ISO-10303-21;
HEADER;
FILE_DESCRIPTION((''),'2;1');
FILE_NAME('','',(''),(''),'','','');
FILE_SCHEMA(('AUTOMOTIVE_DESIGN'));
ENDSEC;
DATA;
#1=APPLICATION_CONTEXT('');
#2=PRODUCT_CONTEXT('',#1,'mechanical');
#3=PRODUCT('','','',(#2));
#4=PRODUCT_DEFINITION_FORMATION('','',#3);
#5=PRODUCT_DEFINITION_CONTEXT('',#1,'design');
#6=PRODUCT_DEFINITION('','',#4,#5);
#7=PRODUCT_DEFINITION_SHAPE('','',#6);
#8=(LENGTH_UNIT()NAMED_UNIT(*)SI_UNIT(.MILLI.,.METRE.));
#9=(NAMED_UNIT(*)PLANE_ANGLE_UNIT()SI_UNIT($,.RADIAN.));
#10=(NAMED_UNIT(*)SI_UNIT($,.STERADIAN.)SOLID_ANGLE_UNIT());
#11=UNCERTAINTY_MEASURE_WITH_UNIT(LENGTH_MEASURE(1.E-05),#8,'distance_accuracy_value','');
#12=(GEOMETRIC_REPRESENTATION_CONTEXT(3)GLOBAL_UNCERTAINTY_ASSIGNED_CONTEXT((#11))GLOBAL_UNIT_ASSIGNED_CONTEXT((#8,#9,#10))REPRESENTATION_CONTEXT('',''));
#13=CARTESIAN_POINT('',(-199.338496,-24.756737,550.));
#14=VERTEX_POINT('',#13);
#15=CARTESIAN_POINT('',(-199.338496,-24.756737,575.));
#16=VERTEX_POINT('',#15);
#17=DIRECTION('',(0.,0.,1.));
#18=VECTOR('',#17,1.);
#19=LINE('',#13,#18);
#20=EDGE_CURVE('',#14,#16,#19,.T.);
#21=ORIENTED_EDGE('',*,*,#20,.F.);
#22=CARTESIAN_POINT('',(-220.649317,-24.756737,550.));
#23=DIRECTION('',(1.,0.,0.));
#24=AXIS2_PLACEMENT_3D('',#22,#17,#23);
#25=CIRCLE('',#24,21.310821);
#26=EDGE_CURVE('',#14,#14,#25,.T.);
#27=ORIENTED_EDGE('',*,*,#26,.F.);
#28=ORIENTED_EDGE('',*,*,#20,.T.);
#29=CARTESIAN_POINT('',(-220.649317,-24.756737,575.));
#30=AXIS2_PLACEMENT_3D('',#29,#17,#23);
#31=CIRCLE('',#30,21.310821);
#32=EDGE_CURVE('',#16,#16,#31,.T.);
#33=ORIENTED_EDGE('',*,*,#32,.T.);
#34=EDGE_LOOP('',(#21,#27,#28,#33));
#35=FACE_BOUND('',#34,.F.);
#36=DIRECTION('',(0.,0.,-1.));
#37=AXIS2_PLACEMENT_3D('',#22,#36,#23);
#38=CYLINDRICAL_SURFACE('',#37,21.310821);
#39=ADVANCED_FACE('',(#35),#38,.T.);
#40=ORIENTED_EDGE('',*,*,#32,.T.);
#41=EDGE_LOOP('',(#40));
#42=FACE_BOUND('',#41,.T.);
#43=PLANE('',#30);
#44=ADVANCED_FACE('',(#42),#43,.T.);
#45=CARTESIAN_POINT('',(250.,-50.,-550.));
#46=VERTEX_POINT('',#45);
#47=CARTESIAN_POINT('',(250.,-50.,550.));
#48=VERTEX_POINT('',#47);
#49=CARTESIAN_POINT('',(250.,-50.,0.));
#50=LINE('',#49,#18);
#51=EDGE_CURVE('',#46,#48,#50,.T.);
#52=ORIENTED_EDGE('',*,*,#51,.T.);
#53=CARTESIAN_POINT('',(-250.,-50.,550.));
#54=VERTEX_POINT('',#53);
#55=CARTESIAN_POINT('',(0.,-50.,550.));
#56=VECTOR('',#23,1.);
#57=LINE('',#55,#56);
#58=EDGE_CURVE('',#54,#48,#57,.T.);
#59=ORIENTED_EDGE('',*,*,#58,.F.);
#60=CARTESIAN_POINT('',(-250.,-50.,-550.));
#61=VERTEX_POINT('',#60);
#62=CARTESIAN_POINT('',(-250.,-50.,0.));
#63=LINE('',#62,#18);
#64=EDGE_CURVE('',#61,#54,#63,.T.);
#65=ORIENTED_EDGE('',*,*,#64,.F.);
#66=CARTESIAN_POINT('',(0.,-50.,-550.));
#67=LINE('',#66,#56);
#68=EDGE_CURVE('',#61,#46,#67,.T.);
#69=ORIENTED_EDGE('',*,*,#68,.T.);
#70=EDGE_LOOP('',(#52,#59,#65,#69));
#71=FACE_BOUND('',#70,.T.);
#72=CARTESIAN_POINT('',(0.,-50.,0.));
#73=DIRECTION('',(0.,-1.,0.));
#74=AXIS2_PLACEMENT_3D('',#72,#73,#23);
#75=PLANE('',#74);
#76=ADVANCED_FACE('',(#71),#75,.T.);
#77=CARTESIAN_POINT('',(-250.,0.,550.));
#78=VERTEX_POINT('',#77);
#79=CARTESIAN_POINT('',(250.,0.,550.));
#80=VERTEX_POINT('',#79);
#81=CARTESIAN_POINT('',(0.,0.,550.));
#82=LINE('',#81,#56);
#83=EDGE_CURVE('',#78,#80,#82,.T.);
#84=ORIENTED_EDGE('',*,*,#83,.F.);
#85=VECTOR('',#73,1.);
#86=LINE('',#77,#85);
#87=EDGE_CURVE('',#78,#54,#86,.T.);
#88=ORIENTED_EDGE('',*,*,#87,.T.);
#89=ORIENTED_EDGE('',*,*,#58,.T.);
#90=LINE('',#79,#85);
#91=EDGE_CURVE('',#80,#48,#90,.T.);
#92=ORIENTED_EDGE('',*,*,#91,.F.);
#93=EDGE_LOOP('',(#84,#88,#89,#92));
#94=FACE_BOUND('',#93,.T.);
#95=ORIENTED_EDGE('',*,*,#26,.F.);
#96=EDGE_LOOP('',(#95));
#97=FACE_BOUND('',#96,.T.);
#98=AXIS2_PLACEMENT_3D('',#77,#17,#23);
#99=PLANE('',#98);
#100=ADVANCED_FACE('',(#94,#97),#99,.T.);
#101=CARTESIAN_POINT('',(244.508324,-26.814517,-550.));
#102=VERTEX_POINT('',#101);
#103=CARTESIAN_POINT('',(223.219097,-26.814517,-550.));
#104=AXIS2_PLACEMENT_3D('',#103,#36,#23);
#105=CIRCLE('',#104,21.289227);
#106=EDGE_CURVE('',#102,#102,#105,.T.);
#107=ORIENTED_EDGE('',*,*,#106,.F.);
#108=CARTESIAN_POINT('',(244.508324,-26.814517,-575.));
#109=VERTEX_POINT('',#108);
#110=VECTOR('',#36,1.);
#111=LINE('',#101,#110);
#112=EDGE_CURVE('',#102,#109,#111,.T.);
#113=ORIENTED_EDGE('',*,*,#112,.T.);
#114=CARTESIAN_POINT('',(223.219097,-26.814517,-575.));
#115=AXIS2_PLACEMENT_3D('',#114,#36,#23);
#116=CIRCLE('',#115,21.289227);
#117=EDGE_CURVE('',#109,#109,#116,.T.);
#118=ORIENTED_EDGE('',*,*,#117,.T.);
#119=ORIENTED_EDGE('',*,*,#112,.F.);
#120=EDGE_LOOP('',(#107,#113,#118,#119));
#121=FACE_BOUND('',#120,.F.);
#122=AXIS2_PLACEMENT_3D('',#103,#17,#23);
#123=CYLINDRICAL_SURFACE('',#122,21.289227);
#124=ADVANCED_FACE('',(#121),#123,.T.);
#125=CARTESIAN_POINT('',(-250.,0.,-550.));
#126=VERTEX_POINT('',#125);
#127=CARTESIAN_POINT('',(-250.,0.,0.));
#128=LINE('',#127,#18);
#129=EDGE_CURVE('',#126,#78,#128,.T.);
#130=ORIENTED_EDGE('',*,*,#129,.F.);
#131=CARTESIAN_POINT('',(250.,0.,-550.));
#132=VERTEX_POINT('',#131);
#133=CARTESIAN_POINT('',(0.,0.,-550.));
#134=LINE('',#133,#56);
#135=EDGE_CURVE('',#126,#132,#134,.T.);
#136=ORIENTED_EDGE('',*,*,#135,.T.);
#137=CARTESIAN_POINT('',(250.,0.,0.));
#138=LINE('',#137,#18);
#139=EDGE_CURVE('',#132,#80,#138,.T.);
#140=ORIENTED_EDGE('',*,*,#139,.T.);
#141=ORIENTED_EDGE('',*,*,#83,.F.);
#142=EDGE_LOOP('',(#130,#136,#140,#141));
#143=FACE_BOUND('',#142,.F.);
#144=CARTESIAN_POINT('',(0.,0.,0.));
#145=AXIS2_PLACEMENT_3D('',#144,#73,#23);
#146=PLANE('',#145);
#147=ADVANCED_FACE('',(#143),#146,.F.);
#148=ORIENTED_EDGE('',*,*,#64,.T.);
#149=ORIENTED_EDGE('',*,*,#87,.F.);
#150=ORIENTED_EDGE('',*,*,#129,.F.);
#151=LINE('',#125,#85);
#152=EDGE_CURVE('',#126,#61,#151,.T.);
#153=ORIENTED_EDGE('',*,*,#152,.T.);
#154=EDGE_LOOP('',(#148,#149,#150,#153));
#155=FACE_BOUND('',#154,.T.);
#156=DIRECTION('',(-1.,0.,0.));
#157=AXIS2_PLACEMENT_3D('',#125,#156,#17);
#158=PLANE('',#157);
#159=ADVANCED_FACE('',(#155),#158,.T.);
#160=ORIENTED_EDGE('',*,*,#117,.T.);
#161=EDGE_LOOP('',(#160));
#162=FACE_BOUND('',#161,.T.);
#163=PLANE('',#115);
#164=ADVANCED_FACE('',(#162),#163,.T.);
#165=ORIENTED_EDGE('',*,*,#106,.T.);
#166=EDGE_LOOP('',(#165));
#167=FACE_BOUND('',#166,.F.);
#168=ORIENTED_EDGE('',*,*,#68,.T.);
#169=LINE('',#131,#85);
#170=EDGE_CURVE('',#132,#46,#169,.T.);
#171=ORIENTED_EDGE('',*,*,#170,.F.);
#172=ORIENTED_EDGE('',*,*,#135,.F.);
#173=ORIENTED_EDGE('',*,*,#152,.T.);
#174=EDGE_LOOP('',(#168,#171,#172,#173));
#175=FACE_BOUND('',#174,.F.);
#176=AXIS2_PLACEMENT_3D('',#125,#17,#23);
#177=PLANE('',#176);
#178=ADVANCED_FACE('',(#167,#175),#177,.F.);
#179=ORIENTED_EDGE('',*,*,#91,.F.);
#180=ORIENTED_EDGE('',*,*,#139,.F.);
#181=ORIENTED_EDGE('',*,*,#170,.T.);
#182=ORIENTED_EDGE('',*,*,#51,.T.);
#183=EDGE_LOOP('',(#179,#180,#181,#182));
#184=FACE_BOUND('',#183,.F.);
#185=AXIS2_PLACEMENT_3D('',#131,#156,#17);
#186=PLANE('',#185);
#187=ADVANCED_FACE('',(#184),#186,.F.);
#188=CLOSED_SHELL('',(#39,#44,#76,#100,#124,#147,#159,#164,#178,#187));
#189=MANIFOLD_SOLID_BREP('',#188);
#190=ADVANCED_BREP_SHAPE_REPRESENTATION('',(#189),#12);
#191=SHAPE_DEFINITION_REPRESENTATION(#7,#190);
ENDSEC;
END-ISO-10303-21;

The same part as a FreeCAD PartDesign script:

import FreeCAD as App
import Part
import Sketcher
from FreeCAD import Vector

doc = App.newDocument("Part")
body = doc.addObject("PartDesign::Body", "Body")

# Sketch on XZ plane
sketch1 = body.newObject("Sketcher::SketchObject", "Sketch")
sketch1.AttachmentSupport = (doc.getObject("XZ_Plane"), [""])
sketch1.MapMode = "FlatFace"
sketch1.addGeometry([
    Part.LineSegment(Vector(-250, 550, 0), Vector(-250, -550, 0)),
    Part.LineSegment(Vector(-250, -550, 0), Vector(250, -550, 0)),
    Part.LineSegment(Vector(250, -550, 0), Vector(250, 550, 0)),
    Part.LineSegment(Vector(250, 550, 0), Vector(-250, 550, 0)),
], False)
sketch1.addConstraint([
    Sketcher.Constraint("Coincident", 0, 2, 1, 1),
    Sketcher.Constraint("Coincident", 1, 2, 2, 1),
    Sketcher.Constraint("Coincident", 2, 2, 3, 1),
    Sketcher.Constraint("Coincident", 3, 2, 0, 1),
    Sketcher.Constraint("Vertical", 0),
    Sketcher.Constraint("Horizontal", 1),
    Sketcher.Constraint("Vertical", 2),
    Sketcher.Constraint("Horizontal", 3),
    Sketcher.Constraint("Symmetric", 0, 2, 2, 2, -1, 1),
    Sketcher.Constraint("DistanceX", 1, 1, 1, 2, 500.0),
    Sketcher.Constraint("DistanceY", 0, 2, 0, 1, 1100.0),
])
pad1 = body.newObject("PartDesign::Pad", "Pad")
pad1.Profile = sketch1
pad1.Length = 50

# Sketch on XY plane
sketch2 = body.newObject("Sketcher::SketchObject", "Sketch001")
sketch2.AttachmentSupport = (doc.getObject("XY_Plane"), [""])
sketch2.MapMode = "FlatFace"
sketch2.AttachmentOffset = App.Placement(Vector(0, 0, 550), App.Rotation())
sketch2.addGeometry(Part.Circle(Vector(-221, -25, 0), Vector(0, 0, 1), 21), False)
sketch2.addConstraint([
    Sketcher.Constraint("Diameter", 0, 42.621642),
    Sketcher.Constraint("DistanceX", 0, 3, -1, 1, 220.649317),
    Sketcher.Constraint("DistanceY", 0, 3, -1, 1, 24.756737),
])
pad2 = body.newObject("PartDesign::Pad", "Pad001")
pad2.Profile = sketch2
pad2.Length = 25

# Sketch on XY plane
sketch3 = body.newObject("Sketcher::SketchObject", "Sketch002")
sketch3.AttachmentSupport = (doc.getObject("XY_Plane"), [""])
sketch3.MapMode = "FlatFace"
sketch3.AttachmentOffset = App.Placement(Vector(0, 0, -550), App.Rotation())
sketch3.addGeometry(Part.Circle(Vector(223, -27, 0), Vector(0, 0, 1), 21), False)
sketch3.addConstraint([
    Sketcher.Constraint("Diameter", 0, 42.578454),
    Sketcher.Constraint("DistanceX", -1, 1, 0, 3, 223.219097),
    Sketcher.Constraint("DistanceY", 0, 3, -1, 1, 26.814517),
])
pad3 = body.newObject("PartDesign::Pad", "Pad002")
pad3.Profile = sketch3
pad3.Length = 25
pad3.Reversed = True

doc.recompute()
